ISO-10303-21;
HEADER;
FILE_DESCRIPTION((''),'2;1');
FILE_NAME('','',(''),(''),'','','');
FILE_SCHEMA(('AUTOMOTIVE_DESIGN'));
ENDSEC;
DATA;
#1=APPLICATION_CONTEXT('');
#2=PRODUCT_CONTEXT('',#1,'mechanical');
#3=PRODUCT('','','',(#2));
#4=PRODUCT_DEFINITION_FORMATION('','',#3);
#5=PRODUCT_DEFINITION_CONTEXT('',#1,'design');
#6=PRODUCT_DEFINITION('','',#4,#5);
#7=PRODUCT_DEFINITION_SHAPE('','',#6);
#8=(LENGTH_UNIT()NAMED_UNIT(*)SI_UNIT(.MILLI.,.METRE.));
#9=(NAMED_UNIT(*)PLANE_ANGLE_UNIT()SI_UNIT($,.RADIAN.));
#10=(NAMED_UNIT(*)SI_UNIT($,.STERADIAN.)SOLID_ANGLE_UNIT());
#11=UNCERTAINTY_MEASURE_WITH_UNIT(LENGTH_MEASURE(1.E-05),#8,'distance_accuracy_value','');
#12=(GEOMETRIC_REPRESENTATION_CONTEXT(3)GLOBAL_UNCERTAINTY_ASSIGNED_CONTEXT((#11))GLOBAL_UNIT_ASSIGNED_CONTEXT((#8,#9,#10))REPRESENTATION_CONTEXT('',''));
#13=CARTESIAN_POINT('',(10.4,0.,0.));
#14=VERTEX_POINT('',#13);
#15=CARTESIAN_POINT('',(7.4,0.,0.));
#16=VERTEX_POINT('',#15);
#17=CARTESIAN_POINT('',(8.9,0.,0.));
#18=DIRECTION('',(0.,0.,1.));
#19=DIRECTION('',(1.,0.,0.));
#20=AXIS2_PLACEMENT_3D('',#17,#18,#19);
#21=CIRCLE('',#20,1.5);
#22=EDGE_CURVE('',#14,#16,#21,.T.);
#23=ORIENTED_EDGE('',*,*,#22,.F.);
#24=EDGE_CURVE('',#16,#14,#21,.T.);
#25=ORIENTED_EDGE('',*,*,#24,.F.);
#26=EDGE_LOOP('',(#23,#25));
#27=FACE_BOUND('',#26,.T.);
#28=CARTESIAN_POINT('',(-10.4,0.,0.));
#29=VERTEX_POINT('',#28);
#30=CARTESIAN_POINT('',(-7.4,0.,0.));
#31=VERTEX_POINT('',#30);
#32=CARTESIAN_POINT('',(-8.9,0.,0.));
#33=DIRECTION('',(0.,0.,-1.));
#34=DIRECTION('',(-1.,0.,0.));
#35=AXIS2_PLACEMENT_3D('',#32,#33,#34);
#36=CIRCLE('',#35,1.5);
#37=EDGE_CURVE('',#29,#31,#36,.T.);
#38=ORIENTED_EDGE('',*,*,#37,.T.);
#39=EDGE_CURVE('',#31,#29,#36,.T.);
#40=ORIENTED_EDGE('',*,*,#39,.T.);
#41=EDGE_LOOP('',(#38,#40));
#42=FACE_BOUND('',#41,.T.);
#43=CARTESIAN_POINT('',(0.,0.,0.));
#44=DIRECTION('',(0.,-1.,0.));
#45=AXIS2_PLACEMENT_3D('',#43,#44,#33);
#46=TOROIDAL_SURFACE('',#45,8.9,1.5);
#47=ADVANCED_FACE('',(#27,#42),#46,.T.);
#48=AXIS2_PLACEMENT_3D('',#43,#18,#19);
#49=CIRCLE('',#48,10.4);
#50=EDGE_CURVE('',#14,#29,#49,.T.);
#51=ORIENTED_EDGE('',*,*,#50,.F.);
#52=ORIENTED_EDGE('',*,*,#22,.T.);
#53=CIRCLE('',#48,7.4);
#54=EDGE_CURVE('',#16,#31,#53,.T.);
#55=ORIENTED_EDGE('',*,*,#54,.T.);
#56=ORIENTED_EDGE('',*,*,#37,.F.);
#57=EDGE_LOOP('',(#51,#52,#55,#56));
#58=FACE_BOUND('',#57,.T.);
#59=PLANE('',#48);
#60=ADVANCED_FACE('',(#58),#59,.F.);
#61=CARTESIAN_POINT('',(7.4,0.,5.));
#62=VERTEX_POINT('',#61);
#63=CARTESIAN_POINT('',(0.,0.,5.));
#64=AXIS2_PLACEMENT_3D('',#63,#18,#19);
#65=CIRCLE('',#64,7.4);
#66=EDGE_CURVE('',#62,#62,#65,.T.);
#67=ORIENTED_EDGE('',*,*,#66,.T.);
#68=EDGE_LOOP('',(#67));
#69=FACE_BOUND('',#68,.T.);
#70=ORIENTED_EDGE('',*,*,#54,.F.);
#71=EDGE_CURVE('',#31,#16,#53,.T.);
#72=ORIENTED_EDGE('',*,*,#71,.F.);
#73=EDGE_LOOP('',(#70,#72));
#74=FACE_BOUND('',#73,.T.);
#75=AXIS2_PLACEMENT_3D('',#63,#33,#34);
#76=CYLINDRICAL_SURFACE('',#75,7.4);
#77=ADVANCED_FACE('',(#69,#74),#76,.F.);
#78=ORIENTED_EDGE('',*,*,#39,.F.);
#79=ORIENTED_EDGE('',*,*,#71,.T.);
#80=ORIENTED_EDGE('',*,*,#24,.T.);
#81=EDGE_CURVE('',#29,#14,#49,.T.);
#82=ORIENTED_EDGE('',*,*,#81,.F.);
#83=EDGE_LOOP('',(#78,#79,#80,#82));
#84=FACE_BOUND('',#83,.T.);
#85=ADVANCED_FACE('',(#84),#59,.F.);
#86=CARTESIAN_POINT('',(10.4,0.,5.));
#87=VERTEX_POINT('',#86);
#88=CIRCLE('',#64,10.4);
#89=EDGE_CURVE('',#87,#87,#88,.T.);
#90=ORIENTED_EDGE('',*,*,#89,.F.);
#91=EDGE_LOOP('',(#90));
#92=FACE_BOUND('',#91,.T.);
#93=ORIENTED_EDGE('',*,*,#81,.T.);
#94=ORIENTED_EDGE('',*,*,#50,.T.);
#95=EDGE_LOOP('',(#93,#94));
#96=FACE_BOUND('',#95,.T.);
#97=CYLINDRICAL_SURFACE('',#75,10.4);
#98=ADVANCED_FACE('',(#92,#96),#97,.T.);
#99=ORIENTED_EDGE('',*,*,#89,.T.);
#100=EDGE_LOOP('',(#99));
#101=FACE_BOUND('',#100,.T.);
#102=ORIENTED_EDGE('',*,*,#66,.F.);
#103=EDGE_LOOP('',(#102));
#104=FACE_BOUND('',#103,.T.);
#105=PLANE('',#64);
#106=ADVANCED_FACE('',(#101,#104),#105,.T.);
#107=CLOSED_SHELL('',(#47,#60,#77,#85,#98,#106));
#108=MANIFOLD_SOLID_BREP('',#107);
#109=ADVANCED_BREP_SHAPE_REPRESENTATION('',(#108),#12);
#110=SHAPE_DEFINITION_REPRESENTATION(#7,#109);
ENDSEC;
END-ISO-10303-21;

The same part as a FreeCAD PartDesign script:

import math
import FreeCAD as App
import Part
import Sketcher
from FreeCAD import Vector

doc = App.newDocument("Part")
body = doc.addObject("PartDesign::Body", "Body")

# Sketch on XY plane
sketch1 = body.newObject("Sketcher::SketchObject", "Sketch")
sketch1.AttachmentSupport = (doc.getObject("XY_Plane"), [""])
sketch1.MapMode = "FlatFace"
sketch1.addGeometry(Part.Circle(Vector(0, 0, 0), Vector(0, 0, 1), 10), False)
sketch1.addGeometry(Part.Circle(Vector(0, 0, 0), Vector(0, 0, 1), 7), False)
sketch1.addConstraint(Sketcher.Constraint("Coincident", 0, 3, -1, 1))
sketch1.addConstraint(Sketcher.Constraint("Coincident", 1, 3, -1, 1))
sketch1.addConstraint(Sketcher.Constraint("Diameter", 0, 20.8))
sketch1.addConstraint(Sketcher.Constraint("Diameter", 1, 14.8))
pad1 = body.newObject("PartDesign::Pad", "Pad")
pad1.Profile = sketch1
pad1.Length = 5

# Sketch on XY plane
sketch2 = body.newObject("Sketcher::SketchObject", "Sketch001")
sketch2.AttachmentSupport = (doc.getObject("XY_Plane"), [""])
sketch2.MapMode = "FlatFace"
sketch2.addGeometry(Part.Circle(Vector(-8.9, 0, 0), Vector(0, 0, 1), 1.5), False)
sketch2.addConstraint(Sketcher.Constraint("PointOnObject", 0, 3, -1))
sketch2.addConstraint(Sketcher.Constraint("Diameter", 0, 3.0))
sketch2.addConstraint(Sketcher.Constraint("DistanceX", 0, 3, -1, 1, 8.9))

# Sketch on XZ plane
sketch3 = body.newObject("Sketcher::SketchObject", "Sketch002")
sketch3.AttachmentSupport = (doc.getObject("XZ_Plane"), [""])
sketch3.MapMode = "FlatFace"
sketch3.addGeometry(Part.ArcOfCircle(Part.Circle(Vector(0, 0, 0), Vector(0, 0, 1), 9), math.radians(180), math.radians(360)), False)
sketch3.addConstraint(Sketcher.Constraint("Coincident", 0, 3, -1, 1))
sketch3.addConstraint(Sketcher.Constraint("PointOnObject", 0, 1, -1))
sketch3.addConstraint(Sketcher.Constraint("PointOnObject", 0, 2, -1))
sketch3.addConstraint(Sketcher.Constraint("Radius", 0, 8.9))
doc.recompute()

additivepipe = body.newObject("PartDesign::AdditivePipe", "AdditivePipe")
additivepipe.Profile = sketch2
additivepipe.Spine = (sketch3, ["Edge1"])

doc.recompute()
